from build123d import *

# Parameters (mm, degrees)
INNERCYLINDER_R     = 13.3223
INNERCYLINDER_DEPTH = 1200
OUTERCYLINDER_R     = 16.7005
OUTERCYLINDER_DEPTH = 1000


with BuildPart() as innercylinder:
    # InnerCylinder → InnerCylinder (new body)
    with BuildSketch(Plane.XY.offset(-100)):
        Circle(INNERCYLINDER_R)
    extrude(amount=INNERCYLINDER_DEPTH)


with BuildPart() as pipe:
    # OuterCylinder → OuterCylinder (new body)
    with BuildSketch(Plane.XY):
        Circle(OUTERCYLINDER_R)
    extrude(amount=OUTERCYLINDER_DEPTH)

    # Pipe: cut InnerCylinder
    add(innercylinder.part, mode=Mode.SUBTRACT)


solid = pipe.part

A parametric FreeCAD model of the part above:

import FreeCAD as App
import Part
import Sketcher
from FreeCAD import Vector
Q = App.Units.Quantity

doc = App.newDocument("Part")
body = doc.addObject("PartDesign::Body", "Body")

# Sketch on XY plane
sketch1 = doc.addObject("Sketcher::SketchObject", "Sketch")
body.addObject(sketch1)
sketch1.AttachmentSupport = (doc.XY_Plane, [""])
sketch1.MapMode = "FlatFace"
sketch1.AttachmentOffset = App.Placement(Vector(0, 0, -100), App.Rotation())
sketch1.addGeometry(Part.Circle(Vector(0, 0, 0), Vector(0, 0, 1), 13), False)
sketch1.addConstraint([
    Sketcher.Constraint("Coincident", 0, 3, -1, 1),
    Sketcher.Constraint("Diameter", 0, Q("26.6446 mm")),
])
pad1 = doc.addObject("PartDesign::Pad", "Pad")
body.addObject(pad1)
pad1.Profile = sketch1
pad1.Length = 1200
body2 = doc.addObject("PartDesign::Body", "Body001")

# Sketch on XY plane
sketch2 = doc.addObject("Sketcher::SketchObject", "Sketch001")
body2.addObject(sketch2)
sketch2.AttachmentSupport = (doc.getObject("XY_Plane001"), [""])
sketch2.MapMode = "FlatFace"
sketch2.addGeometry(Part.Circle(Vector(0, 0, 0), Vector(0, 0, 1), 17), False)
sketch2.addConstraint([
    Sketcher.Constraint("Coincident", 0, 3, -1, 1),
    Sketcher.Constraint("Diameter", 0, Q("33.401 mm")),
])
pad2 = doc.addObject("PartDesign::Pad", "Pad001")
body2.addObject(pad2)
pad2.Profile = sketch2
pad2.Length = 1000
doc.recompute()

boolean = doc.addObject("PartDesign::Boolean", "Boolean")
body2.addObject(boolean)
boolean.Type = "Cut"
boolean.addObjects([body])

doc.recompute()
